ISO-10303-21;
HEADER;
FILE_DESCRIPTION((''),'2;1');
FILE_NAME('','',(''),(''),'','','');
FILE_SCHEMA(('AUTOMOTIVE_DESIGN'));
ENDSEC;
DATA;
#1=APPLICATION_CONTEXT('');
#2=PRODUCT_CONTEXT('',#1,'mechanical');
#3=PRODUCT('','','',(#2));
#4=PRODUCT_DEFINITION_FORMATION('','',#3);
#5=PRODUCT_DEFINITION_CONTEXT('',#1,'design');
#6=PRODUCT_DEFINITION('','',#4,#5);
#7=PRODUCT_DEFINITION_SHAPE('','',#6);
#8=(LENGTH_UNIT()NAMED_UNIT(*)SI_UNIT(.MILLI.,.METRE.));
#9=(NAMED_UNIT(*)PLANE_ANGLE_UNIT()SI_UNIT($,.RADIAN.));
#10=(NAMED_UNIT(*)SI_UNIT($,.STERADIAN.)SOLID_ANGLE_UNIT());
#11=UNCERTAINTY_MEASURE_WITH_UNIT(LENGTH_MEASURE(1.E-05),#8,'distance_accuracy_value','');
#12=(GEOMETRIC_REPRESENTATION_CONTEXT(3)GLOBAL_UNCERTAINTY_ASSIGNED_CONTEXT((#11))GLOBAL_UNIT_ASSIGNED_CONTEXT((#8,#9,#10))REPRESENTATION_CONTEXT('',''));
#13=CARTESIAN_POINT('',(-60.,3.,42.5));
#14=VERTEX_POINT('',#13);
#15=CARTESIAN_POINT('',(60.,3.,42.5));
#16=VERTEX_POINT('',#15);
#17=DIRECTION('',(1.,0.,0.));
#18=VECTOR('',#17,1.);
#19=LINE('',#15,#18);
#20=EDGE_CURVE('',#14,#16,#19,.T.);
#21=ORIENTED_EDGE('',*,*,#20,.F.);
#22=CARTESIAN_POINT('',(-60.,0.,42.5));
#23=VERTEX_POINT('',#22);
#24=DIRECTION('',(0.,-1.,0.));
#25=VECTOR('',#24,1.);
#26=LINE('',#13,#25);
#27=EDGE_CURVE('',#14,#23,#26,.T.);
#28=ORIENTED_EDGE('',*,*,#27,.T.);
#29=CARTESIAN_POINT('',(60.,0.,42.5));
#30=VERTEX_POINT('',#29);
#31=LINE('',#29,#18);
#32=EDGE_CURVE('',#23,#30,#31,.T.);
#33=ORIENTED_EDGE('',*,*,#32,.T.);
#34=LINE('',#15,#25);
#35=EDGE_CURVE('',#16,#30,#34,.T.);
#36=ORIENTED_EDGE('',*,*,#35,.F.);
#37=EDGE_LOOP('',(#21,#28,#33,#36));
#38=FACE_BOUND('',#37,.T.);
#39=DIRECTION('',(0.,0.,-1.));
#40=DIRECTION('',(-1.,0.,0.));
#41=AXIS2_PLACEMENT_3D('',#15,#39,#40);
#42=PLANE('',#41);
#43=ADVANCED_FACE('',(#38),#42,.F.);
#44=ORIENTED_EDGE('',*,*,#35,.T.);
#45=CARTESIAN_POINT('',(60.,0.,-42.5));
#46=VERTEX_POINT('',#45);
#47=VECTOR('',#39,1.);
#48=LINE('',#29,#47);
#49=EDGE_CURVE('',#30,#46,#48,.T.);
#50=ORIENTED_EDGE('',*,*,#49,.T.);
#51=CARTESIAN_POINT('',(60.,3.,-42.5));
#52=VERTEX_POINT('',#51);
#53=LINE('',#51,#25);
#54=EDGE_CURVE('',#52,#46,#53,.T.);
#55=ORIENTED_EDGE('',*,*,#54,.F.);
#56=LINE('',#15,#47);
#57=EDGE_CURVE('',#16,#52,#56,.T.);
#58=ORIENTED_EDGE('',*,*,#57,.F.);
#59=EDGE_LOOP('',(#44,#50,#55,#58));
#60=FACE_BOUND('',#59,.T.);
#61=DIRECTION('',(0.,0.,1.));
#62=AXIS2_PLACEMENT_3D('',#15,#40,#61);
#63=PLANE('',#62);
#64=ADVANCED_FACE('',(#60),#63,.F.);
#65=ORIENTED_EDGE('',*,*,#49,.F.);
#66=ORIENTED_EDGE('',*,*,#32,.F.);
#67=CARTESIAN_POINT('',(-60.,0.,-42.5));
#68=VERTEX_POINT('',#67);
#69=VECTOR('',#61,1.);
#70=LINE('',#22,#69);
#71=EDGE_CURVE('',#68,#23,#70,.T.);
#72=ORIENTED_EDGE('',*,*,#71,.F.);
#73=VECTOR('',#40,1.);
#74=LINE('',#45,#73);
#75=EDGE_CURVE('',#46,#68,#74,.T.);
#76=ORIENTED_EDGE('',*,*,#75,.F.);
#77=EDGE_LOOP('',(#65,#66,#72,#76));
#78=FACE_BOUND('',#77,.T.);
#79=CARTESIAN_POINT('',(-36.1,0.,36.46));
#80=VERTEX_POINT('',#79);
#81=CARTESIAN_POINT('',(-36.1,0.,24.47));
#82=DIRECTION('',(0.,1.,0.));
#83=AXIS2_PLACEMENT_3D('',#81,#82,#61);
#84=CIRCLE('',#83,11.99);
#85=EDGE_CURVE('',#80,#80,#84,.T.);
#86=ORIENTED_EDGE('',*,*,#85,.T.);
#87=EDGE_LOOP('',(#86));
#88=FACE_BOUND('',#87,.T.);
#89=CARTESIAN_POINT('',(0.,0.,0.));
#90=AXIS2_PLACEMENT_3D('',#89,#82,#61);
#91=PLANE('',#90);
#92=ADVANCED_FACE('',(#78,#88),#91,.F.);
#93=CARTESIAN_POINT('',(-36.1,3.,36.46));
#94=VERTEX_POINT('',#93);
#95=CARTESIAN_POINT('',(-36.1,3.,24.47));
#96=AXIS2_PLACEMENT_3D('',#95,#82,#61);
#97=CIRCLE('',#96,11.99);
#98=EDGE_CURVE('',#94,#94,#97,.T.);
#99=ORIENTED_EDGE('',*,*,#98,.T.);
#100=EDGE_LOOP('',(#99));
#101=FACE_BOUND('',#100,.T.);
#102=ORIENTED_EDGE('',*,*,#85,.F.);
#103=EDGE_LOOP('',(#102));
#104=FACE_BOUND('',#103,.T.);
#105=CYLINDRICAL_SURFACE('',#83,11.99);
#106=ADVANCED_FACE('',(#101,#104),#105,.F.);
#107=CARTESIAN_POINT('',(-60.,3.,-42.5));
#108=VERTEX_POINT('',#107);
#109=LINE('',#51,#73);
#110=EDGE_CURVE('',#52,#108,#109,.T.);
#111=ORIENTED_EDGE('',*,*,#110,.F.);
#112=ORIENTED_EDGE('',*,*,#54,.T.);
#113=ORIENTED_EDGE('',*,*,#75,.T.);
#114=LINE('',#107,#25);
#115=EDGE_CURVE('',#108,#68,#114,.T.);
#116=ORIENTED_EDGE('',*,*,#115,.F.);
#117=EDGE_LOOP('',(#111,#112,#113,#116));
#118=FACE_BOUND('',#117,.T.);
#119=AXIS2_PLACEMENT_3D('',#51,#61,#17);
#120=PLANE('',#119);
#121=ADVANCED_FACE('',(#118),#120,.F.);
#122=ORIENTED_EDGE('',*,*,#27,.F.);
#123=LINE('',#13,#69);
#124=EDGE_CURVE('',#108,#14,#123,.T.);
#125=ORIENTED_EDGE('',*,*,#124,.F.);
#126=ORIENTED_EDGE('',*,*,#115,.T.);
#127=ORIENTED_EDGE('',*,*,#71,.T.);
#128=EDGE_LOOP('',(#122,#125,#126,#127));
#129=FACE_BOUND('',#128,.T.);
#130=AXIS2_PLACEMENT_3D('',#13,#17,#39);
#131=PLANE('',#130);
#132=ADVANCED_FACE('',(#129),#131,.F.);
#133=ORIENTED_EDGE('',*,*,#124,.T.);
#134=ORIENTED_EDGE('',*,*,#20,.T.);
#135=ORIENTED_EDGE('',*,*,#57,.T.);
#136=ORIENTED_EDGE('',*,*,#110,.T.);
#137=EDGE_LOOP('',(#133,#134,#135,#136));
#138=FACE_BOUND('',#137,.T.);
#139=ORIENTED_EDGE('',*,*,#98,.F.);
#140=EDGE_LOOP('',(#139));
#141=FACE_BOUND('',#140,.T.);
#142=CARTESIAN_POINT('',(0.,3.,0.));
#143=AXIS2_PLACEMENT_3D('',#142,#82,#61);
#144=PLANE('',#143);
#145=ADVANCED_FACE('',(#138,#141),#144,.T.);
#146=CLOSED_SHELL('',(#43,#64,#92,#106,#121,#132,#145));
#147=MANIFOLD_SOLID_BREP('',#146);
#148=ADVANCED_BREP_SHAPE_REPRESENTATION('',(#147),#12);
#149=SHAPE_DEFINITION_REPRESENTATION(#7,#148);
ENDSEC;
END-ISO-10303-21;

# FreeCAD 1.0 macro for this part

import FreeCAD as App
import Part
import Sketcher


def add_polygon(sketch, points):
    """Adds a closed chain of lines whose ends are joined by coincident constraints."""
    first, n = sketch.GeometryCount, len(points)
    for a, b in zip(points, points[1:] + points[:1]):
        sketch.addGeometry(Part.LineSegment(App.Vector(*a, 0), App.Vector(*b, 0)), False)
    for i in range(n):
        sketch.addConstraint(Sketcher.Constraint("Coincident", first + i, 2, first + (i + 1) % n, 1))

doc = App.newDocument("Part")
body = doc.addObject("PartDesign::Body", "Body")

# Sketch on XZ plane
sketch1 = doc.addObject("Sketcher::SketchObject", "Sketch")
body.addObject(sketch1)
sketch1.AttachmentSupport = (doc.XZ_Plane, [""])
sketch1.MapMode = "FlatFace"
add_polygon(sketch1, [(-60, -42.5), (-60, 42.5), (60, 42.5), (60, -42.5)])  # lines 0-3
sketch1.addConstraint([
    Sketcher.Constraint("Vertical", 0),
    Sketcher.Constraint("Horizontal", 1),
    Sketcher.Constraint("Vertical", 2),
    Sketcher.Constraint("Horizontal", 3),
    Sketcher.Constraint("Symmetric", 0, 2, 2, 2, -1, 1),
    Sketcher.Constraint("DistanceX", 1, 1, 1, 2, 120.0),
    Sketcher.Constraint("DistanceY", 0, 1, 0, 2, 85.0),
])
pad1 = doc.addObject("PartDesign::Pad", "Pad")
body.addObject(pad1)
pad1.Profile = sketch1
pad1.Length = 3
pad1.Reversed = True

# Sketch on XZ plane
sketch2 = doc.addObject("Sketcher::SketchObject", "Sketch001")
body.addObject(sketch2)
sketch2.AttachmentSupport = (doc.XZ_Plane, [""])
sketch2.MapMode = "FlatFace"
sketch2.AttachmentOffset = App.Placement(App.Vector(0, 0, -3), App.Rotation())
sketch2.addGeometry(Part.Circle(App.Vector(-36.1, 24.47, 0), App.Vector(0, 0, 1), 11.99), False)
sketch2.addConstraint([
    Sketcher.Constraint("Diameter", 0, 23.98),
    Sketcher.Constraint("DistanceX", 0, 3, -1, 1, 36.1),
    Sketcher.Constraint("DistanceY", -1, 1, 0, 3, 24.47),
])
pocket1 = doc.addObject("PartDesign::Pocket", "Pocket")
body.addObject(pocket1)
pocket1.Profile = sketch2
pocket1.Length = 3
pocket1.Reversed = True

doc.recompute()
